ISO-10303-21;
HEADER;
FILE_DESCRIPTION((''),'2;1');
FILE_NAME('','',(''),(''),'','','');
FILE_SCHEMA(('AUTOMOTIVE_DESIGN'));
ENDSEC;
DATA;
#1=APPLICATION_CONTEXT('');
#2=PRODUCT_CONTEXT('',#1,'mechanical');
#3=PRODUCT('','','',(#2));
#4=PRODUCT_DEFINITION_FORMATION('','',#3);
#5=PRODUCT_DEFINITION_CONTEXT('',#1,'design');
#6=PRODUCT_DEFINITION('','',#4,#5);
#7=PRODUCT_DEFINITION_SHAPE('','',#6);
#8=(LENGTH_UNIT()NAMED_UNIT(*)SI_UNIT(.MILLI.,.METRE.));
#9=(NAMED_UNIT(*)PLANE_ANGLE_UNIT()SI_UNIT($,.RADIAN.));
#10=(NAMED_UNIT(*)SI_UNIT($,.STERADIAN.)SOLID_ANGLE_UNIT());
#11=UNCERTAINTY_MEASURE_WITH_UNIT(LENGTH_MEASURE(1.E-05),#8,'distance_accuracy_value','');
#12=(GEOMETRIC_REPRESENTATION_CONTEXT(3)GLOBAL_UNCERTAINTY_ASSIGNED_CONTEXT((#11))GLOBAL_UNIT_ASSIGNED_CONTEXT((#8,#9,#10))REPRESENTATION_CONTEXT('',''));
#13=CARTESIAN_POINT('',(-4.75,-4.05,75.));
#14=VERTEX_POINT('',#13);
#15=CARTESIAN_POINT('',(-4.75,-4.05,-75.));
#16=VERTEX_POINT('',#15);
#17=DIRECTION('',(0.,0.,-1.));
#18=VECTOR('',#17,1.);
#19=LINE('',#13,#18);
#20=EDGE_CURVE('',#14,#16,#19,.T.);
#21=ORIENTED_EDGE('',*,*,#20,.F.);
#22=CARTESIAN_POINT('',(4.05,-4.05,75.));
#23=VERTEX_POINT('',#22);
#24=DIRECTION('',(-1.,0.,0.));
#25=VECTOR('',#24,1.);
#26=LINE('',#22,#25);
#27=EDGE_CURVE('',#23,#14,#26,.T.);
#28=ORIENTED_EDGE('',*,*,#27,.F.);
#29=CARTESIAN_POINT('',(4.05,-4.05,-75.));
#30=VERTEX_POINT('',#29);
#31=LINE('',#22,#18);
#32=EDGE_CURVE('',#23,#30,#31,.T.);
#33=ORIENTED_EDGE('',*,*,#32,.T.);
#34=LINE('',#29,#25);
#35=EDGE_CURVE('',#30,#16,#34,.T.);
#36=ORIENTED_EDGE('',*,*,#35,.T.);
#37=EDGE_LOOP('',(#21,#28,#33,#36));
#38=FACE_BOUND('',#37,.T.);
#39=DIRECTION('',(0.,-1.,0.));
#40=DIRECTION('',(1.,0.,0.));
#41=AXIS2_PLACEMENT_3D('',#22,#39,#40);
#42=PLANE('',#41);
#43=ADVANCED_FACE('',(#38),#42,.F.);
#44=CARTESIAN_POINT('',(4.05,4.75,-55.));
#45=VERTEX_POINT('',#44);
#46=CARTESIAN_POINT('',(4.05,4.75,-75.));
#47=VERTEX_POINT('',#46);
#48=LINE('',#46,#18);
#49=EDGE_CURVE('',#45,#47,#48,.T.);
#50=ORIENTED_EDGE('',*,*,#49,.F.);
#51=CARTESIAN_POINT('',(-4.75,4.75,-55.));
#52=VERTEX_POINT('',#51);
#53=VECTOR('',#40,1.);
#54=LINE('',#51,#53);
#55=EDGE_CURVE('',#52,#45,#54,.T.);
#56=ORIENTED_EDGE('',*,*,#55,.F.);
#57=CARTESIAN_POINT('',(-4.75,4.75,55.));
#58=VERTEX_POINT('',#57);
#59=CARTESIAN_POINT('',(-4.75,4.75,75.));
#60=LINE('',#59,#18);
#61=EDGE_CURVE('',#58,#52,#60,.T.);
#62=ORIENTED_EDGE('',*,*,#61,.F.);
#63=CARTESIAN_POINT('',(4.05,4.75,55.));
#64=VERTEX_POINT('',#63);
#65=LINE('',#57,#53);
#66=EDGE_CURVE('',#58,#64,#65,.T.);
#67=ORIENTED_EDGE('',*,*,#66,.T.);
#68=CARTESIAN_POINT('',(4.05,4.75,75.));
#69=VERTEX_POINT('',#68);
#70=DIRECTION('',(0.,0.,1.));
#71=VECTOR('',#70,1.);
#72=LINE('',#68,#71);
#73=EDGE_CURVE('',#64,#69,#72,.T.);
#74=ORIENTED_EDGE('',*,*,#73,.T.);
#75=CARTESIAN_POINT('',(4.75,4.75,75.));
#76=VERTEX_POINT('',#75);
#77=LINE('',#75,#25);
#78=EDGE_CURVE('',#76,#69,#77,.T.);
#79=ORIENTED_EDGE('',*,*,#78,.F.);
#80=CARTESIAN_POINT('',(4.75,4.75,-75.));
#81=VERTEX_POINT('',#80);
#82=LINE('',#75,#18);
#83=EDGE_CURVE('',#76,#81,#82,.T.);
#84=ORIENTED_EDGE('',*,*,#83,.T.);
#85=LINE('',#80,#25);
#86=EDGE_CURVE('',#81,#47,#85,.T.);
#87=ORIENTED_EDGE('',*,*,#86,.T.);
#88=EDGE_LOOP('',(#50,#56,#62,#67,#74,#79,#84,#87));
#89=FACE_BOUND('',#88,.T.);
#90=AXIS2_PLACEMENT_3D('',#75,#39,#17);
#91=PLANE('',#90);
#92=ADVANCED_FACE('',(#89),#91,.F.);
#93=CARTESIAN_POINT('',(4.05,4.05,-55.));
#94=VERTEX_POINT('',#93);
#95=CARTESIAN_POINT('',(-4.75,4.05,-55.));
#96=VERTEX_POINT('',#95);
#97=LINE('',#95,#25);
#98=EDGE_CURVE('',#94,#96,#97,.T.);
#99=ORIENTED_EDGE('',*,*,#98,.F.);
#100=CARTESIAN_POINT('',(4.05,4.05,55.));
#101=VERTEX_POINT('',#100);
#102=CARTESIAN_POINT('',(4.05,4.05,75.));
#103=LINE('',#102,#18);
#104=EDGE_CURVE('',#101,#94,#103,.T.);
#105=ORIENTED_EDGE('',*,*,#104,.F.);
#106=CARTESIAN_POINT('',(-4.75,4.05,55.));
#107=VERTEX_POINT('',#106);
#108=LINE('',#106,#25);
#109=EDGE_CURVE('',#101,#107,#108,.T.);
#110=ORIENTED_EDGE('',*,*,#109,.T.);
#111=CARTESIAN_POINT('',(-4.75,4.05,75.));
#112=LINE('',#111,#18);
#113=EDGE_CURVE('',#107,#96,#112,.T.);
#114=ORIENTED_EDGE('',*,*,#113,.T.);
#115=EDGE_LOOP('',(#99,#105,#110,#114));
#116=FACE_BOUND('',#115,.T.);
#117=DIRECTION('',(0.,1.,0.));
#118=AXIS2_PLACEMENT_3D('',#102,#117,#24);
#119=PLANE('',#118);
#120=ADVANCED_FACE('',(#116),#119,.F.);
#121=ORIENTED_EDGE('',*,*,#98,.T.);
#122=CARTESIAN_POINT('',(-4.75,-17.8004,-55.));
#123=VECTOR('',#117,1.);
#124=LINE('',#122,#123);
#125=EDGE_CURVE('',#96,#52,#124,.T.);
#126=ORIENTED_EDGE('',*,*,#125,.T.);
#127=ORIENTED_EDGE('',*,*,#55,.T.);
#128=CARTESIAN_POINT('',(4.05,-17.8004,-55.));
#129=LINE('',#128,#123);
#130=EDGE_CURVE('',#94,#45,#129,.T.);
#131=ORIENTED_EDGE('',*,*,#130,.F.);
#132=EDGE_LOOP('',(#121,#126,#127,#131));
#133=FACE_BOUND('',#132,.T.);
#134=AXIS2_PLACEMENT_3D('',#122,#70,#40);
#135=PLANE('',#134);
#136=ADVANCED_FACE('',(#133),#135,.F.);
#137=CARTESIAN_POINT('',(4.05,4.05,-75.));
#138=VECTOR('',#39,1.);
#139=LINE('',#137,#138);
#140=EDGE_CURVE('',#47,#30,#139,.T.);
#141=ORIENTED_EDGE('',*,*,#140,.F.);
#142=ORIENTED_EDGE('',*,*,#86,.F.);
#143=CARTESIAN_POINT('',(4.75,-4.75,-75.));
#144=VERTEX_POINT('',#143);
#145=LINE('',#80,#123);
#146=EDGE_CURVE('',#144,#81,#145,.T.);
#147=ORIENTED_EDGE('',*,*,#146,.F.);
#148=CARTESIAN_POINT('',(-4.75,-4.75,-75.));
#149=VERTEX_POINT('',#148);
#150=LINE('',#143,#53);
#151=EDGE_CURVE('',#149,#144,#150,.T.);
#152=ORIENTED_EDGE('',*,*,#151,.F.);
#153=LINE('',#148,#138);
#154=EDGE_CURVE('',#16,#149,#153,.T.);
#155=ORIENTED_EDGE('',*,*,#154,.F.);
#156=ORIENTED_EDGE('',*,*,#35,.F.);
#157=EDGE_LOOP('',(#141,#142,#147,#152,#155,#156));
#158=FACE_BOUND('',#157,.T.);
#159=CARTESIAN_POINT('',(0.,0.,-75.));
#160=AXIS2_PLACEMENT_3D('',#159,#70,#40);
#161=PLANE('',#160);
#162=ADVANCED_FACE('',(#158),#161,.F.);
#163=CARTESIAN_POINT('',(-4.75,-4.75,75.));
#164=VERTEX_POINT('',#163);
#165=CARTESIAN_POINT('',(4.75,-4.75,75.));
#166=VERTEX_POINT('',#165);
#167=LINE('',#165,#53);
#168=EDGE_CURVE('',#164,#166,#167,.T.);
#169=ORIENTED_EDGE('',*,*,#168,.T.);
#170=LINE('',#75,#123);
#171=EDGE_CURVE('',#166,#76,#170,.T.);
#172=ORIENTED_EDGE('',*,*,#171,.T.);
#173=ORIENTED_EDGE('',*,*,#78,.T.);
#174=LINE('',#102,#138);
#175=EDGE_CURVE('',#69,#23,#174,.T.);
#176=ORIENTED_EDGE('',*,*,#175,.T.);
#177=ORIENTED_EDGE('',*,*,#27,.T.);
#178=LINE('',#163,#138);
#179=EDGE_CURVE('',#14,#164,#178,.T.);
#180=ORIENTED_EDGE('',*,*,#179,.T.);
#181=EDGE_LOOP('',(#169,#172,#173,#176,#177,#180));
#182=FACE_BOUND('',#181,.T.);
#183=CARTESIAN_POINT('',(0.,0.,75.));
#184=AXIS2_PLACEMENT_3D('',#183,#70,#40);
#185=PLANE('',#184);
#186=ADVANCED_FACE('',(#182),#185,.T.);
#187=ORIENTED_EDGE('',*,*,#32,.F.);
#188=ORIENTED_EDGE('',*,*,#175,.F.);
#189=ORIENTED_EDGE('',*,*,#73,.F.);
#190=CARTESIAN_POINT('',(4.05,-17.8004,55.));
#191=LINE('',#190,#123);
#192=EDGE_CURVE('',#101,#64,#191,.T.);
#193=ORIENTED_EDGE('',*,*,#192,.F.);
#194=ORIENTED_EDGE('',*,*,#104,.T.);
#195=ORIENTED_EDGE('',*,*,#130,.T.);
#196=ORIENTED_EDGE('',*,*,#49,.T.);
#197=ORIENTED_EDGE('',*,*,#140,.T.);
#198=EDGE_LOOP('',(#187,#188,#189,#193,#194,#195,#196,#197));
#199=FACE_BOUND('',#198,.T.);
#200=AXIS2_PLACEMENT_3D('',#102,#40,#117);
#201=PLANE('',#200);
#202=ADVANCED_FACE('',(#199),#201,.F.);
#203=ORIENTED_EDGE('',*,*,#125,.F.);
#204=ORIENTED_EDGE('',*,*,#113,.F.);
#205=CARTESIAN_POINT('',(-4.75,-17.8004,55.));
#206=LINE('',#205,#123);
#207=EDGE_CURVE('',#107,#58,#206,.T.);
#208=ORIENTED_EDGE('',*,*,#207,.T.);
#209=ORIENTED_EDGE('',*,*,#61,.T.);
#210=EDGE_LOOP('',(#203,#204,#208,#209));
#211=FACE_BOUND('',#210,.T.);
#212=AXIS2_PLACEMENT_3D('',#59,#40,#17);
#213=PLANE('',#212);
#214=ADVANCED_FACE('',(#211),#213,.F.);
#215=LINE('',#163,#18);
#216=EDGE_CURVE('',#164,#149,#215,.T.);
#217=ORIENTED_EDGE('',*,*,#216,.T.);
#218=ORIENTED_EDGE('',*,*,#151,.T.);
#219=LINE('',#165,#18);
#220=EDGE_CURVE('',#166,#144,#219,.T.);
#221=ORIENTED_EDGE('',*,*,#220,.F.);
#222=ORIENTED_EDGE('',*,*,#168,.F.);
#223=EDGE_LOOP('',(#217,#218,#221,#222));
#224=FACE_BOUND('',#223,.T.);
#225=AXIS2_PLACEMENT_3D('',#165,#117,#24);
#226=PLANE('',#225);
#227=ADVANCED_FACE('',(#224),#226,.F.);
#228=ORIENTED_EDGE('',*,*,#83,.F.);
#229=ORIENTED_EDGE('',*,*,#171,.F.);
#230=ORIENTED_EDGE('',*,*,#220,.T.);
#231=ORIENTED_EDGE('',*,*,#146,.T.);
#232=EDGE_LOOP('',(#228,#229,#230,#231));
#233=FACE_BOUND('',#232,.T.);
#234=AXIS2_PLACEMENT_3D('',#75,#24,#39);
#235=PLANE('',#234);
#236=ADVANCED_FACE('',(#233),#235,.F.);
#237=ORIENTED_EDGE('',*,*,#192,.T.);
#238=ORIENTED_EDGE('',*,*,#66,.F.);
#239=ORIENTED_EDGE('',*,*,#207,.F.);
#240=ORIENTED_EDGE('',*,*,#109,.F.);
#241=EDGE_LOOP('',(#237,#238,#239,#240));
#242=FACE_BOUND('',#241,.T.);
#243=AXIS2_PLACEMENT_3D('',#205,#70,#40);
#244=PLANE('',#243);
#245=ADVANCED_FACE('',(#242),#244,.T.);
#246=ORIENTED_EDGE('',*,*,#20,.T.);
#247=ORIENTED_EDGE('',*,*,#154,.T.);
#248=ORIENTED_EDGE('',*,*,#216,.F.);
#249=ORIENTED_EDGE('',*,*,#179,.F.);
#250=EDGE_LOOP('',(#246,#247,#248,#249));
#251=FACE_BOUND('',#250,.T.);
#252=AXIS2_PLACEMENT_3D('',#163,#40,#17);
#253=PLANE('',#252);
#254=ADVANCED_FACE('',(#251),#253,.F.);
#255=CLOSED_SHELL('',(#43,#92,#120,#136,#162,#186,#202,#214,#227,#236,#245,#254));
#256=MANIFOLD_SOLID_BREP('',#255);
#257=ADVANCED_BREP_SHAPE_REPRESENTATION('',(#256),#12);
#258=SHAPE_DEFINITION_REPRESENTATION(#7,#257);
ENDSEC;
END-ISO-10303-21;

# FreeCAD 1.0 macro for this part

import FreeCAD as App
import Part
import Sketcher

doc = App.newDocument("Part")
body = doc.addObject("PartDesign::Body", "Body")

# Sketch on XY plane
sketch1 = body.newObject("Sketcher::SketchObject", "Sketch")
sketch1.AttachmentSupport = (doc.getObject("XY_Plane"), [""])
sketch1.MapMode = "FlatFace"
sketch1.addGeometry(Part.LineSegment(App.Vector(4.8, -4.8, 0), App.Vector(4.8, 4.8, 0)), False)
sketch1.addGeometry(Part.LineSegment(App.Vector(4.8, 4.8, 0), App.Vector(-4.8, 4.8, 0)), False)
sketch1.addGeometry(Part.LineSegment(App.Vector(-4.8, 4.8, 0), App.Vector(-4.8, 4, 0)), False)
sketch1.addGeometry(Part.LineSegment(App.Vector(-4.8, 4, 0), App.Vector(4, 4, 0)), False)
sketch1.addGeometry(Part.LineSegment(App.Vector(4, 4, 0), App.Vector(4, -4, 0)), False)
sketch1.addGeometry(Part.LineSegment(App.Vector(4, -4, 0), App.Vector(-4.8, -4, 0)), False)
sketch1.addGeometry(Part.LineSegment(App.Vector(-4.8, -4, 0), App.Vector(-4.8, -4.8, 0)), False)
sketch1.addGeometry(Part.LineSegment(App.Vector(-4.8, -4.8, 0), App.Vector(4.8, -4.8, 0)), False)
sketch1.addConstraint(Sketcher.Constraint("Coincident", 0, 2, 1, 1))
sketch1.addConstraint(Sketcher.Constraint("Coincident", 1, 2, 2, 1))
sketch1.addConstraint(Sketcher.Constraint("Coincident", 2, 2, 3, 1))
sketch1.addConstraint(Sketcher.Constraint("Coincident", 3, 2, 4, 1))
sketch1.addConstraint(Sketcher.Constraint("Coincident", 4, 2, 5, 1))
sketch1.addConstraint(Sketcher.Constraint("Coincident", 5, 2, 6, 1))
sketch1.addConstraint(Sketcher.Constraint("Coincident", 6, 2, 7, 1))
sketch1.addConstraint(Sketcher.Constraint("Coincident", 7, 2, 0, 1))
sketch1.addConstraint(Sketcher.Constraint("Vertical", 0))
sketch1.addConstraint(Sketcher.Constraint("Horizontal", 1))
sketch1.addConstraint(Sketcher.Constraint("Vertical", 2))
sketch1.addConstraint(Sketcher.Constraint("Horizontal", 3))
sketch1.addConstraint(Sketcher.Constraint("Vertical", 4))
sketch1.addConstraint(Sketcher.Constraint("Horizontal", 5))
sketch1.addConstraint(Sketcher.Constraint("Vertical", 6))
sketch1.addConstraint(Sketcher.Constraint("Horizontal", 7))
sketch1.addConstraint(Sketcher.Constraint("Symmetric", 0, 2, 6, 2, -1, 1))
sketch1.addConstraint(Sketcher.Constraint("Symmetric", 2, 2, 5, 2, -1))
sketch1.addConstraint(Sketcher.Constraint("Equal", 7, 0))
sketch1.addConstraint(Sketcher.Constraint("DistanceX", 1, 2, 1, 1, 9.5))
sketch1.addConstraint(Sketcher.Constraint("DistanceX", 3, 1, 3, 2, 8.8))
sketch1.addConstraint(Sketcher.Constraint("DistanceY", 2, 2, 2, 1, 0.7))
pad1 = body.newObject("PartDesign::Pad", "Pad")
pad1.Profile = sketch1
pad1.Length = 150
pad1.Midplane = True

# Sketch on XZ plane
sketch2 = body.newObject("Sketcher::SketchObject", "Sketch001")
sketch2.AttachmentSupport = (doc.getObject("XZ_Plane"), [""])
sketch2.MapMode = "FlatFace"
sketch2.AttachmentOffset = App.Placement(App.Vector(0, 0, -4.75), App.Rotation())
sketch2.addGeometry(Part.LineSegment(App.Vector(-5, -75, 0), App.Vector(-5, -55, 0)), False)
sketch2.addGeometry(Part.LineSegment(App.Vector(-5, -55, 0), App.Vector(4, -55, 0)), False)
sketch2.addGeometry(Part.LineSegment(App.Vector(4, -55, 0), App.Vector(4, -75, 0)), False)
sketch2.addGeometry(Part.LineSegment(App.Vector(4, -75, 0), App.Vector(-5, -75, 0)), False)
sketch2.addConstraint(Sketcher.Constraint("Coincident", 0, 2, 1, 1))
sketch2.addConstraint(Sketcher.Constraint("Coincident", 1, 2, 2, 1))
sketch2.addConstraint(Sketcher.Constraint("Coincident", 2, 2, 3, 1))
sketch2.addConstraint(Sketcher.Constraint("Coincident", 3, 2, 0, 1))
sketch2.addConstraint(Sketcher.Constraint("Vertical", 0))
sketch2.addConstraint(Sketcher.Constraint("Horizontal", 1))
sketch2.addConstraint(Sketcher.Constraint("Vertical", 2))
sketch2.addConstraint(Sketcher.Constraint("Horizontal", 3))
sketch2.addConstraint(Sketcher.Constraint("DistanceY", 0, 1, 0, 2, 20.0))
sketch2.addConstraint(Sketcher.Constraint("DistanceX", 1, 1, 1, 2, 8.8))
sketch2.addConstraint(Sketcher.Constraint("DistanceY", 0, 2, -1, 1, 55.0))
sketch2.addConstraint(Sketcher.Constraint("DistanceX", 0, 2, -1, 1, 4.75))
pocket1 = body.newObject("PartDesign::Pocket", "Pocket")
pocket1.Profile = sketch2
pocket1.Length = 0.7
pocket1.Reversed = True
doc.recompute()

mirrored = body.newObject("PartDesign::Mirrored", "Mirrored")
mirrored.Originals = [pocket1]
mirrored.MirrorPlane = (doc.getObject("XY_Plane"), [""])
body.Tip = mirrored

doc.recompute()
